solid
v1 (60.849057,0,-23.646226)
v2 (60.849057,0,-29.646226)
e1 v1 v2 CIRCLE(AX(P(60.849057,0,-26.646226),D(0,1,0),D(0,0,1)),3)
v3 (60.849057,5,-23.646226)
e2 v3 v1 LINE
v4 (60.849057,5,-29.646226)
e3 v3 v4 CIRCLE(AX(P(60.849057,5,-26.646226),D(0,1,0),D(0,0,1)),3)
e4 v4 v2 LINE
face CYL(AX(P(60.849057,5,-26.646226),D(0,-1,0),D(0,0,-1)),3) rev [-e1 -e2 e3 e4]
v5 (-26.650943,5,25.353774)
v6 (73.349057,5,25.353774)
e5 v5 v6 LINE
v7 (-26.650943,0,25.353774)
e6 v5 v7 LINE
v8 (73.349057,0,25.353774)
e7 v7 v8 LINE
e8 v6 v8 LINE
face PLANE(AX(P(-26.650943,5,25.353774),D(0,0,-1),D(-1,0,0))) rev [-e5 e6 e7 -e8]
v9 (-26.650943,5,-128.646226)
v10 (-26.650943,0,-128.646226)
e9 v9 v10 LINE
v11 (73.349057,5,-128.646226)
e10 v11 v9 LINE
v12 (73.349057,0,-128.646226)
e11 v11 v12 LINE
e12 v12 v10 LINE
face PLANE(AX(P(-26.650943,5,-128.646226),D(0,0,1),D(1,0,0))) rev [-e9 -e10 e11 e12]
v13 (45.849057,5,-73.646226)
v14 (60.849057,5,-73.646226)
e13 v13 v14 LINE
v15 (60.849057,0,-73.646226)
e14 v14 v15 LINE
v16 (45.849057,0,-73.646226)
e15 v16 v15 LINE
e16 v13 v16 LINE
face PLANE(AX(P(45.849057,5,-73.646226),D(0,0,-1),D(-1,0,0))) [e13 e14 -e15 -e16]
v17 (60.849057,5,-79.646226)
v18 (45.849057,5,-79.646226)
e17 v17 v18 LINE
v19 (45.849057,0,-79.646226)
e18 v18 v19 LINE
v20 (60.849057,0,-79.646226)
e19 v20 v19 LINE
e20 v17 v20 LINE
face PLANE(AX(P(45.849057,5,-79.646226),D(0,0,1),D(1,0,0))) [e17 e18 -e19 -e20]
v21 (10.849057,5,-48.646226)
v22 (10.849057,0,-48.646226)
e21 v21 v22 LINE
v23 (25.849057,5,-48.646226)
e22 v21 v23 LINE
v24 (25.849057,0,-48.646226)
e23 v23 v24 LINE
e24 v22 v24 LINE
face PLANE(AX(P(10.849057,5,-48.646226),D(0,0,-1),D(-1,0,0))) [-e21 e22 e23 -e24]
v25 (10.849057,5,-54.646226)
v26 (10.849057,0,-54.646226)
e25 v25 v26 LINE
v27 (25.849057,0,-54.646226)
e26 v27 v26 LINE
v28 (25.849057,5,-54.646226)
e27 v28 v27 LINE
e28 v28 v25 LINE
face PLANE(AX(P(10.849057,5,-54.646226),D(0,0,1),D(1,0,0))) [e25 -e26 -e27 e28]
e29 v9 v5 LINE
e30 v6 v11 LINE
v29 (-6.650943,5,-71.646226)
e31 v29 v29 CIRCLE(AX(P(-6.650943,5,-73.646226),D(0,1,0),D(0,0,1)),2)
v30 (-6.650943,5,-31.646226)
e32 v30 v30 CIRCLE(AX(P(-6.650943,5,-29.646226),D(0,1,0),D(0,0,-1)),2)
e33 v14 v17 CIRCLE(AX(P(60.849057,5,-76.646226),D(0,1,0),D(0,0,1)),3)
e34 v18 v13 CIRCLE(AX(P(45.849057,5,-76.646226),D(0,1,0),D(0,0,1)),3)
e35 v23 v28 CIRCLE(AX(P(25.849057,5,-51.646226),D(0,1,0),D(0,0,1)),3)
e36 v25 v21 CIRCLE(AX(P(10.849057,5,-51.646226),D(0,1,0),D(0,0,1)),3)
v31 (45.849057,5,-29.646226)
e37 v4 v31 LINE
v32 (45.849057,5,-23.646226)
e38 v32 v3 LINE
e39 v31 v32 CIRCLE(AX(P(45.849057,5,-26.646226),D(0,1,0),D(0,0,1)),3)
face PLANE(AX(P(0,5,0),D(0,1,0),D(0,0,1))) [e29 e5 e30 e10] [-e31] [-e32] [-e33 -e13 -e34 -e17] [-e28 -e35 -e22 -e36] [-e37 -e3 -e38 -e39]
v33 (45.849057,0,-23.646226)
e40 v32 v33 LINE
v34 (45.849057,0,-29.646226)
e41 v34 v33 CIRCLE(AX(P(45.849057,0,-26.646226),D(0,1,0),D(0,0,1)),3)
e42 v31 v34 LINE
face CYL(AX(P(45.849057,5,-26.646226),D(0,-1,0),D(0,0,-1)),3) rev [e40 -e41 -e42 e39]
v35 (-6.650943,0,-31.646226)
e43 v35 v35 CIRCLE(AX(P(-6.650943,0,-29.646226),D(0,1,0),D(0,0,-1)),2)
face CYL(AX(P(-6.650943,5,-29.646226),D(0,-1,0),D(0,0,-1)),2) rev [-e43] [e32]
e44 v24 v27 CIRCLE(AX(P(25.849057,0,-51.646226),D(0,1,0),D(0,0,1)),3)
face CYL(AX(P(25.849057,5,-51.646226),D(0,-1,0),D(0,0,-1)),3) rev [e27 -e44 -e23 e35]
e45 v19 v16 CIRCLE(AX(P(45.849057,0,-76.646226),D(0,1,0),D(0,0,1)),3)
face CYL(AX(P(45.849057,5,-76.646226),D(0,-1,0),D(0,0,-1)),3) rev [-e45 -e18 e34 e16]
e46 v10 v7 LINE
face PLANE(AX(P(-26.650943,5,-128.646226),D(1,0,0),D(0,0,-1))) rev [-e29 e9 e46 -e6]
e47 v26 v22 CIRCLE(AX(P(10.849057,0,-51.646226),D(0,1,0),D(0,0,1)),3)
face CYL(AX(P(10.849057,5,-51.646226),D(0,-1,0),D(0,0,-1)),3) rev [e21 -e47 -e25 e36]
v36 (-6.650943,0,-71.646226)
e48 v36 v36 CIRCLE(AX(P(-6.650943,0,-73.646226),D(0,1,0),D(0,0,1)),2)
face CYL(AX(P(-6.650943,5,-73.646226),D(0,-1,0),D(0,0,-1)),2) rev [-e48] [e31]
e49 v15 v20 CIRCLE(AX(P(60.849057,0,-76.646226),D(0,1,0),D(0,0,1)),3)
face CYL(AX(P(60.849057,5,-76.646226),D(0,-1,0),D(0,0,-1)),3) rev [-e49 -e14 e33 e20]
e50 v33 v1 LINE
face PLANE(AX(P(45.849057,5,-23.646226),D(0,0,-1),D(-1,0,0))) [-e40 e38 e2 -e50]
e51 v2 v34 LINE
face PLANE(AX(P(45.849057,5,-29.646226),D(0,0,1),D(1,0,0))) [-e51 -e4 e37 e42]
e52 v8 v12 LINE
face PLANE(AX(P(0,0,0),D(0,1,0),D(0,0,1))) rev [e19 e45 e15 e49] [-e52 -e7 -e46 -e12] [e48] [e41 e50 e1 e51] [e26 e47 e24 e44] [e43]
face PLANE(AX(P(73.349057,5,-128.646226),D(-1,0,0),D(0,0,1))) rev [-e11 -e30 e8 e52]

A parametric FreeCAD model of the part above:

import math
import FreeCAD as App
import Part
import Sketcher


def add_polygon(sketch, points):
    """Adds a closed chain of lines whose ends are joined by coincident constraints."""
    first, n = sketch.GeometryCount, len(points)
    for a, b in zip(points, points[1:] + points[:1]):
        sketch.addGeometry(Part.LineSegment(App.Vector(*a, 0), App.Vector(*b, 0)), False)
    for i in range(n):
        sketch.addConstraint(Sketcher.Constraint("Coincident", first + i, 2, first + (i + 1) % n, 1))

doc = App.newDocument("Part")
body = doc.addObject("PartDesign::Body", "Body")

# Sketch on XZ plane
sketch1 = body.newObject("Sketcher::SketchObject", "Sketch")
sketch1.AttachmentSupport = (doc.getObject("XZ_Plane"), [""])
sketch1.MapMode = "FlatFace"
add_polygon(sketch1, [(-26.7, -128.6), (-26.7, 25.4), (73.3, 25.4), (73.3, -128.6)])  # lines 0-3
sketch1.addGeometry(Part.Circle(App.Vector(-6.7, -29.6, 0), App.Vector(0, 0, 1), 2), False)  # 4
sketch1.addGeometry(Part.ArcOfCircle(Part.Circle(App.Vector(45.8, -26.6, 0), App.Vector(0, 0, 1), 3), math.radians(90), math.radians(270)), False)  # 5
sketch1.addGeometry(Part.LineSegment(App.Vector(45.8, -29.6, 0), App.Vector(60.8, -29.6, 0)), False)  # 6
sketch1.addGeometry(Part.ArcOfCircle(Part.Circle(App.Vector(60.8, -26.6, 0), App.Vector(0, 0, 1), 3), math.radians(-90), math.radians(90)), False)  # 7
sketch1.addGeometry(Part.LineSegment(App.Vector(60.8, -23.6, 0), App.Vector(45.8, -23.6, 0)), False)  # 8
sketch1.addGeometry(Part.ArcOfCircle(Part.Circle(App.Vector(10.8, -51.6, 0), App.Vector(0, 0, 1), 3), math.radians(90), math.radians(270)), False)  # 9
sketch1.addGeometry(Part.LineSegment(App.Vector(10.8, -54.6, 0), App.Vector(25.8, -54.6, 0)), False)  # 10
sketch1.addGeometry(Part.ArcOfCircle(Part.Circle(App.Vector(25.8, -51.6, 0), App.Vector(0, 0, 1), 3), math.radians(-90), math.radians(90)), False)  # 11
sketch1.addGeometry(Part.LineSegment(App.Vector(25.8, -48.6, 0), App.Vector(10.8, -48.6, 0)), False)  # 12
sketch1.addGeometry(Part.Circle(App.Vector(-6.7, -73.6, 0), App.Vector(0, 0, 1), 2), False)  # 13
sketch1.addGeometry(Part.ArcOfCircle(Part.Circle(App.Vector(45.8, -76.6, 0), App.Vector(0, 0, 1), 3), math.radians(90), math.radians(270)), False)  # 14
sketch1.addGeometry(Part.LineSegment(App.Vector(45.8, -79.6, 0), App.Vector(60.8, -79.6, 0)), False)  # 15
sketch1.addGeometry(Part.ArcOfCircle(Part.Circle(App.Vector(60.8, -76.6, 0), App.Vector(0, 0, 1), 3), math.radians(-90), math.radians(90)), False)  # 16
sketch1.addGeometry(Part.LineSegment(App.Vector(60.8, -73.6, 0), App.Vector(45.8, -73.6, 0)), False)  # 17
sketch1.addConstraint(Sketcher.Constraint("Tangent", 5, 2, 6, 1))
sketch1.addConstraint(Sketcher.Constraint("Tangent", 6, 2, 7, 1))
sketch1.addConstraint(Sketcher.Constraint("Tangent", 7, 2, 8, 1))
sketch1.addConstraint(Sketcher.Constraint("Tangent", 8, 2, 5, 1))
sketch1.addConstraint(Sketcher.Constraint("Tangent", 9, 2, 10, 1))
sketch1.addConstraint(Sketcher.Constraint("Tangent", 10, 2, 11, 1))
sketch1.addConstraint(Sketcher.Constraint("Tangent", 11, 2, 12, 1))
sketch1.addConstraint(Sketcher.Constraint("Tangent", 12, 2, 9, 1))
sketch1.addConstraint(Sketcher.Constraint("Tangent", 14, 2, 15, 1))
sketch1.addConstraint(Sketcher.Constraint("Tangent", 15, 2, 16, 1))
sketch1.addConstraint(Sketcher.Constraint("Tangent", 16, 2, 17, 1))
sketch1.addConstraint(Sketcher.Constraint("Tangent", 17, 2, 14, 1))
sketch1.addConstraint(Sketcher.Constraint("Vertical", 0))
sketch1.addConstraint(Sketcher.Constraint("Horizontal", 1))
sketch1.addConstraint(Sketcher.Constraint("Vertical", 2))
sketch1.addConstraint(Sketcher.Constraint("Horizontal", 3))
sketch1.addConstraint(Sketcher.Constraint("Horizontal", 6))
sketch1.addConstraint(Sketcher.Constraint("Horizontal", 8))
sketch1.addConstraint(Sketcher.Constraint("Horizontal", 10))
sketch1.addConstraint(Sketcher.Constraint("Horizontal", 12))
sketch1.addConstraint(Sketcher.Constraint("Horizontal", 15))
sketch1.addConstraint(Sketcher.Constraint("Horizontal", 17))
sketch1.addConstraint(Sketcher.Constraint("Equal", 7, 9))
sketch1.addConstraint(Sketcher.Constraint("Equal", 4, 13))
sketch1.addConstraint(Sketcher.Constraint("Equal", 11, 14))
sketch1.addConstraint(Sketcher.Constraint("Horizontal", 4, 3, 5, 2))
sketch1.addConstraint(Sketcher.Constraint("Horizontal", 13, 3, 16, 2))
sketch1.addConstraint(Sketcher.Constraint("Vertical", 4, 3, 13, 3))
sketch1.addConstraint(Sketcher.Constraint("Vertical", 5, 3, 14, 3))
sketch1.addConstraint(Sketcher.Constraint("Vertical", 7, 3, 16, 3))
sketch1.addConstraint(Sketcher.Constraint("Equal", 8, 10))
sketch1.addConstraint(Sketcher.Constraint("Diameter", 4, 4.0))
sketch1.addConstraint(Sketcher.Constraint("Radius", 5, 3.0))
sketch1.addConstraint(Sketcher.Constraint("DistanceX", 1, 1, 1, 2, 100.0))
sketch1.addConstraint(Sketcher.Constraint("DistanceX", 6, 1, 6, 2, 15.0))
sketch1.addConstraint(Sketcher.Constraint("DistanceY", 0, 1, 0, 2, 154.0))
sketch1.addConstraint(Sketcher.Constraint("DistanceY", 9, 3, 4, 3, 22.0))
sketch1.addConstraint(Sketcher.Constraint("DistanceX", 9, 3, 5, 3, 35.0))
sketch1.addConstraint(Sketcher.Constraint("DistanceY", 13, 3, 9, 3, 22.0))
sketch1.addConstraint(Sketcher.Constraint("DistanceX", 0, 2, 4, 3, 20.0))
sketch1.addConstraint(Sketcher.Constraint("DistanceY", 4, 3, 0, 2, 55.0))
sketch1.addConstraint(Sketcher.Constraint("DistanceX", 4, 3, 5, 3, 52.5))
sketch1.addConstraint(Sketcher.Constraint("DistanceX", 4, 3, -1, 1, 6.650943))
sketch1.addConstraint(Sketcher.Constraint("DistanceY", 4, 3, -1, 1, 29.646226))
pad1 = body.newObject("PartDesign::Pad", "Pad")
pad1.Profile = sketch1
pad1.Length = 5
pad1.Reversed = True

doc.recompute()
